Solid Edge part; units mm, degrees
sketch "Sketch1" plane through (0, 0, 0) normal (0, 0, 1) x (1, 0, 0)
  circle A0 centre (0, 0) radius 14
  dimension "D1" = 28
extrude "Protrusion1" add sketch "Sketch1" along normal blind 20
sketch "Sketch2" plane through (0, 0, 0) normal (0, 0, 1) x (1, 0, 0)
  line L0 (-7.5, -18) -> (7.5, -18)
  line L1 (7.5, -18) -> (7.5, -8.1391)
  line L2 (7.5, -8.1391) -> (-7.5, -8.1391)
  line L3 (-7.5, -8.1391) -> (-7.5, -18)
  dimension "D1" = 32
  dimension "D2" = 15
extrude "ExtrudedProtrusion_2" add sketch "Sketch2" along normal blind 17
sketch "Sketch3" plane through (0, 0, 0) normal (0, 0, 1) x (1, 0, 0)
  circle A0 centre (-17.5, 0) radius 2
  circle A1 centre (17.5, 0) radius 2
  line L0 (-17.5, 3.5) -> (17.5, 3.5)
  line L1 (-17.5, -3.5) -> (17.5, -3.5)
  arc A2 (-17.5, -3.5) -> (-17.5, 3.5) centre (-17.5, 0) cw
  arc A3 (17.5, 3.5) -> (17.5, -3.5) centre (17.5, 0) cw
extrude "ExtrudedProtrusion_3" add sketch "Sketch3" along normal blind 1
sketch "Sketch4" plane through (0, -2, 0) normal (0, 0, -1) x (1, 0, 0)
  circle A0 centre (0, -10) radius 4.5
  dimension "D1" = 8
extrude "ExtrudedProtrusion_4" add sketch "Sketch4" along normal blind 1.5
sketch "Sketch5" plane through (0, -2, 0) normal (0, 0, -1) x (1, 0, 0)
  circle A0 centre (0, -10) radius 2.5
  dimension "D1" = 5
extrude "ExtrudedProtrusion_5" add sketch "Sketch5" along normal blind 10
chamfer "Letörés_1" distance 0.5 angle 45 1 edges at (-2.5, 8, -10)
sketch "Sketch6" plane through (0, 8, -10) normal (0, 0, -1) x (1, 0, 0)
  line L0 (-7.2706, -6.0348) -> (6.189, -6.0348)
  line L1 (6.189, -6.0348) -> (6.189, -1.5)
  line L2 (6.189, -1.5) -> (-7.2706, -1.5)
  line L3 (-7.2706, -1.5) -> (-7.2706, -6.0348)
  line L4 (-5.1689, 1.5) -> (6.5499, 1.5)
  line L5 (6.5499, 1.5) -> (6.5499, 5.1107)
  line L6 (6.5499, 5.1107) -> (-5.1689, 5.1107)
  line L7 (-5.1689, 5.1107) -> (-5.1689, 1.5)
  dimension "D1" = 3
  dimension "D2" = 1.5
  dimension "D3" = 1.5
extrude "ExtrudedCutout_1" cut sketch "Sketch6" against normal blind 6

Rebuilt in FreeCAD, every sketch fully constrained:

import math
import FreeCAD as App
import Part
import Sketcher
from FreeCAD import Vector
Q = App.Units.Quantity


def edges_at(feature, points):
    """Names of the edges that pass closest to the given points."""
    edges = feature.Shape.Edges
    near = lambda p: min(range(len(edges)), key=lambda i: edges[i].distToShape(Part.Vertex(*p))[0])
    return sorted({f"Edge{near(p) + 1}" for p in points})


def add_polygon(sketch, points):
    """Adds a closed chain of lines whose ends are joined by coincident constraints."""
    first, n = sketch.GeometryCount, len(points)
    for a, b in zip(points, points[1:] + points[:1]):
        sketch.addGeometry(Part.LineSegment(App.Vector(*a, 0), App.Vector(*b, 0)), False)
    for i in range(n):
        sketch.addConstraint(Sketcher.Constraint("Coincident", first + i, 2, first + (i + 1) % n, 1))

doc = App.newDocument("Part")
params = doc.addObject("Spreadsheet::Sheet", "Params")
for row, (alias, value) in enumerate([
    ("sketch1_diameter", "28 mm"),
    ("pad1_length", "20 mm"),
    ("pad2_length", "17 mm"),
    ("sketch3_diameter", "4 mm"),
    ("sketch3_radius", "3.5 mm"),
    ("sketch3_width", "35 mm"),
    ("pad3_length", "1 mm"),
    ("sketch4_diameter", "9 mm"),
    ("pad4_length", "1.5 mm"),
    ("sketch5_diameter", "5 mm"),
    ("pad5_length", "10 mm"),
    ("chamfer_size", "0.5 mm"),
    ("pocket1_length", "6 mm"),
], start=1):
    params.set(f"A{row}", alias)
    params.set(f"B{row}", "=" + value)
    params.setAlias(f"B{row}", alias)

body = doc.addObject("PartDesign::Body", "Body")

# Sketch on XY plane
sketch1 = body.newObject("Sketcher::SketchObject", "Sketch")
sketch1.AttachmentSupport = (doc.getObject("XY_Plane"), [""])
sketch1.MapMode = "FlatFace"
sketch1.addGeometry(Part.Circle(Vector(0, 0, 0), Vector(0, 0, 1), 14), False)
sketch1.addConstraint([
    Sketcher.Constraint("Coincident", 0, 3, -1, 1),
    Sketcher.Constraint("Diameter", 0, Q("28 mm")),
])
sketch1.setExpression("Constraints[1]", "Params.sketch1_diameter")
pad1 = body.newObject("PartDesign::Pad", "Pad")
pad1.Profile = sketch1
pad1.setExpression("Length", "Params.pad1_length")

# Sketch on XY plane
sketch2 = body.newObject("Sketcher::SketchObject", "Sketch001")
sketch2.AttachmentSupport = (doc.getObject("XY_Plane"), [""])
sketch2.MapMode = "FlatFace"
add_polygon(sketch2, [(-8, -8), (-8, -18), (8, -18), (8, -8)])  # lines 0-3
sketch2.addConstraint([
    Sketcher.Constraint("Vertical", 0),
    Sketcher.Constraint("Horizontal", 1),
    Sketcher.Constraint("Vertical", 2),
    Sketcher.Constraint("Horizontal", 3),
    Sketcher.Constraint("DistanceX", 0, 2, -1, 1, Q("7.5 mm")),
    Sketcher.Constraint("DistanceX", -1, 1, 1, 2, Q("7.5 mm")),
    Sketcher.Constraint("DistanceY", 0, 2, -1, 1, Q("18 mm")),
    Sketcher.Constraint("DistanceY", 0, 2, 0, 1, Q("9.861 mm")),
])
pad2 = body.newObject("PartDesign::Pad", "Pad001")
pad2.Profile = sketch2
pad2.setExpression("Length", "Params.pad2_length")

# Sketch on XY plane
sketch3 = body.newObject("Sketcher::SketchObject", "Sketch002")
sketch3.AttachmentSupport = (doc.getObject("XY_Plane"), [""])
sketch3.MapMode = "FlatFace"
sketch3.addGeometry([
    Part.LineSegment(Vector(17.5, 3.5, 0), Vector(-17.5, 3.5, 0)),  # 0
    Part.ArcOfCircle(Part.Circle(Vector(-17.5, 0, 0), Vector(0, 0, 1), 3.5), math.radians(90), math.radians(270)),  # 1
    Part.LineSegment(Vector(-17.5, -3.5, 0), Vector(17.5, -3.5, 0)),  # 2
    Part.ArcOfCircle(Part.Circle(Vector(17.5, 0, 0), Vector(0, 0, 1), 3.5), math.radians(-90), math.radians(90)),  # 3
    Part.Circle(Vector(-17.5, 0, 0), Vector(0, 0, 1), 2),  # 4
    Part.Circle(Vector(17.5, 0, 0), Vector(0, 0, 1), 2),  # 5
], False)
sketch3.addConstraint([
    Sketcher.Constraint("Tangent", 0, 2, 1, 1),
    Sketcher.Constraint("Tangent", 1, 2, 2, 1),
    Sketcher.Constraint("Tangent", 2, 2, 3, 1),
    Sketcher.Constraint("Tangent", 3, 2, 0, 1),
    Sketcher.Constraint("Horizontal", 0),
    Sketcher.Constraint("Horizontal", 2),
    Sketcher.Constraint("Coincident", 4, 3, 1, 3),
    Sketcher.Constraint("Coincident", 5, 3, 3, 3),
    Sketcher.Constraint("Equal", 4, 5),
    Sketcher.Constraint("Symmetric", 1, 3, 3, 3, -1, 1),
    Sketcher.Constraint("Diameter", 4, Q("4 mm")),
    Sketcher.Constraint("Radius", 1, Q("3.5 mm")),
    Sketcher.Constraint("DistanceX", 0, 2, 0, 1, Q("35 mm")),
])
sketch3.setExpression("Constraints[10]", "Params.sketch3_diameter")
sketch3.setExpression("Constraints[11]", "Params.sketch3_radius")
sketch3.setExpression("Constraints[12]", "Params.sketch3_width")
pad3 = body.newObject("PartDesign::Pad", "Pad002")
pad3.Profile = sketch3
pad3.setExpression("Length", "Params.pad3_length")

# Sketch on XY plane
sketch4 = body.newObject("Sketcher::SketchObject", "Sketch003")
sketch4.AttachmentSupport = (doc.getObject("XY_Plane"), [""])
sketch4.MapMode = "FlatFace"
sketch4.addGeometry(Part.Circle(Vector(0, 8, 0), Vector(0, 0, 1), 4.5), False)
sketch4.addConstraint([
    Sketcher.Constraint("PointOnObject", 0, 3, -2),
    Sketcher.Constraint("Diameter", 0, Q("9 mm")),
    Sketcher.Constraint("DistanceY", -1, 1, 0, 3, Q("8 mm")),
])
sketch4.setExpression("Constraints[1]", "Params.sketch4_diameter")
pad4 = body.newObject("PartDesign::Pad", "Pad003")
pad4.Profile = sketch4
pad4.setExpression("Length", "Params.pad4_length")
pad4.Reversed = True

# Sketch on XY plane
sketch5 = body.newObject("Sketcher::SketchObject", "Sketch004")
sketch5.AttachmentSupport = (doc.getObject("XY_Plane"), [""])
sketch5.MapMode = "FlatFace"
sketch5.addGeometry(Part.Circle(Vector(0, 8, 0), Vector(0, 0, 1), 2.5), False)
sketch5.addConstraint([
    Sketcher.Constraint("PointOnObject", 0, 3, -2),
    Sketcher.Constraint("Diameter", 0, Q("5 mm")),
    Sketcher.Constraint("DistanceY", -1, 1, 0, 3, Q("8 mm")),
])
sketch5.setExpression("Constraints[1]", "Params.sketch5_diameter")
pad5 = body.newObject("PartDesign::Pad", "Pad004")
pad5.Profile = sketch5
pad5.setExpression("Length", "Params.pad5_length")
pad5.Reversed = True
doc.recompute()

chamfer = body.newObject("PartDesign::Chamfer", "Chamfer")
chamfer.Base = (pad5, edges_at(pad5, [(-2.5, 8, -10)]))
chamfer.setExpression("Size", "Params.chamfer_size")

# Sketch on XY plane
sketch6 = body.newObject("Sketcher::SketchObject", "Sketch005")
sketch6.AttachmentSupport = (doc.getObject("XY_Plane"), [""])
sketch6.MapMode = "FlatFace"
sketch6.AttachmentOffset = App.Placement(Vector(0, 0, -10), App.Rotation())
add_polygon(sketch6, [(-7.3, 9.5), (-7.3, 14), (6.2, 14), (6.2, 9.5)])  # lines 0-3
add_polygon(sketch6, [(-5.2, 2.9), (-5.2, 6.5), (6.5, 6.5), (6.5, 2.9)])  # lines 4-7
sketch6.addConstraint([
    Sketcher.Constraint("Vertical", 0),
    Sketcher.Constraint("Horizontal", 1),
    Sketcher.Constraint("Vertical", 2),
    Sketcher.Constraint("Horizontal", 3),
    Sketcher.Constraint("Vertical", 4),
    Sketcher.Constraint("Horizontal", 5),
    Sketcher.Constraint("Vertical", 6),
    Sketcher.Constraint("Horizontal", 7),
    Sketcher.Constraint("DistanceY", 4, 2, 3, 2, Q("3 mm")),
    Sketcher.Constraint("DistanceY", -1, 1, 2, 2, Q("9.5 mm")),
    Sketcher.Constraint("DistanceX", -1, 1, 5, 2, Q("6.55 mm")),
    Sketcher.Constraint("DistanceX", 1, 1, 1, 2, Q("13.4596 mm")),
    Sketcher.Constraint("DistanceX", 5, 1, 5, 2, Q("11.7188 mm")),
    Sketcher.Constraint("DistanceY", 0, 1, 0, 2, Q("4.5348 mm")),
    Sketcher.Constraint("DistanceY", 4, 1, 4, 2, Q("3.6107 mm")),
    Sketcher.Constraint("DistanceX", -1, 1, 1, 2, Q("6.189 mm")),
])
pocket1 = body.newObject("PartDesign::Pocket", "Pocket")
pocket1.Profile = sketch6
pocket1.setExpression("Length", "Params.pocket1_length")
pocket1.Reversed = True

doc.recompute()
